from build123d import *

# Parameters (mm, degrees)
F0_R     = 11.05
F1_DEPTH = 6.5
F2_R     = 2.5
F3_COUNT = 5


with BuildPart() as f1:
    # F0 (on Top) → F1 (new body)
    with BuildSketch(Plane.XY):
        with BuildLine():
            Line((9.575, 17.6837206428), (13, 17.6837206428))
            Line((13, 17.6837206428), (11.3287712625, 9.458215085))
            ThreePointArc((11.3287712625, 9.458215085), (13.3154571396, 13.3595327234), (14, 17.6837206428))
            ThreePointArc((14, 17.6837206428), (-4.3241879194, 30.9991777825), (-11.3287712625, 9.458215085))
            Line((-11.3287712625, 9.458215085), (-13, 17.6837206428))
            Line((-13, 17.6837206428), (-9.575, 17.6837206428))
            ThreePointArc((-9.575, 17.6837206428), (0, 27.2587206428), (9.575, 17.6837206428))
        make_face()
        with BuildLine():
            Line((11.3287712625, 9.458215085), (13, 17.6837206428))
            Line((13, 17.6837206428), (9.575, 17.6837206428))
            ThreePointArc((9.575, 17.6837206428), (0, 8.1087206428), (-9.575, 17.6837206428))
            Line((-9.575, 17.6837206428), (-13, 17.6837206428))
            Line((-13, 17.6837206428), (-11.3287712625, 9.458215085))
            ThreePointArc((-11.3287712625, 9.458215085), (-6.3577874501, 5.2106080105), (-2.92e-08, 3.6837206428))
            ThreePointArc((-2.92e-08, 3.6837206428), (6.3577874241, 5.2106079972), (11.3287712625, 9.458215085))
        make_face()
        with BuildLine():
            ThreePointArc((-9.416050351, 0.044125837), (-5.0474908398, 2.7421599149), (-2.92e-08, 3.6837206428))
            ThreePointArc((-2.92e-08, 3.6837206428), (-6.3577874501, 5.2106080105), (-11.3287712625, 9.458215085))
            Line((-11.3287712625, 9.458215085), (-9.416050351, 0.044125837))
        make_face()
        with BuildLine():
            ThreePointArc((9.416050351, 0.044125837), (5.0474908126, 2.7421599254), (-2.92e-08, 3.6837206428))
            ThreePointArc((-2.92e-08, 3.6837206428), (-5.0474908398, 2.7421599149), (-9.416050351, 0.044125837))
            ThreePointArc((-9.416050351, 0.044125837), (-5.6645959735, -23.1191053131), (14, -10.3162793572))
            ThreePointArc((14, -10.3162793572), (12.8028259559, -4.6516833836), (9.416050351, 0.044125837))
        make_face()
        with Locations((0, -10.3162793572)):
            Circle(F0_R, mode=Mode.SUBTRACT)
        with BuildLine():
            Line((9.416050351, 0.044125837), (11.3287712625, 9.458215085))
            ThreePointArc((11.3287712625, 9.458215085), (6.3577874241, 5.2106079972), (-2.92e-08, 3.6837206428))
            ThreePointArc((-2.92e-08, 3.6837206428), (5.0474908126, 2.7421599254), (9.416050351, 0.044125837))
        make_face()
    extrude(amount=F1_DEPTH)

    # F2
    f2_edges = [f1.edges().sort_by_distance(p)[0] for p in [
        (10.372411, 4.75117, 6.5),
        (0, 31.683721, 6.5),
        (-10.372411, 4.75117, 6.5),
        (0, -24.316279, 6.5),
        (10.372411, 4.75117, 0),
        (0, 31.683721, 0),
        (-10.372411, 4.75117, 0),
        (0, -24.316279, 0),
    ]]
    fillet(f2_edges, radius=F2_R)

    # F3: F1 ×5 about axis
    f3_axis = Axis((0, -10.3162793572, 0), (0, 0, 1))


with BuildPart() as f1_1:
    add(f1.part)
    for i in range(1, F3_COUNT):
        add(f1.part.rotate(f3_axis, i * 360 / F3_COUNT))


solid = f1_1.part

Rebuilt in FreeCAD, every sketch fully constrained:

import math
import FreeCAD as App
import Part
import Sketcher
from FreeCAD import Vector
Q = App.Units.Quantity


def edges_at(feature, points):
    """Names of the edges that pass closest to the given points."""
    edges = feature.Shape.Edges
    near = lambda p: min(range(len(edges)), key=lambda i: edges[i].distToShape(Part.Vertex(*p))[0])
    return sorted({f"Edge{near(p) + 1}" for p in points})

doc = App.newDocument("Part")
body = doc.addObject("PartDesign::Body", "Body")

# Sketch on XY plane
sketch1 = doc.addObject("Sketcher::SketchObject", "Sketch")
body.addObject(sketch1)
sketch1.AttachmentSupport = (doc.XY_Plane, [""])
sketch1.MapMode = "FlatFace"
sketch1.addGeometry([
    Part.ArcOfCircle(Part.Circle(Vector(0, 18, 0), Vector(0, 0, 1), 14), math.radians(-36), math.radians(0)),  # 0
    Part.ArcOfCircle(Part.Circle(Vector(0, 18, 0), Vector(0, 0, 1), 14), math.radians(0), math.radians(216)),  # 1
    Part.LineSegment(Vector(-11, 9, 0), Vector(-9, 0, 0)),  # 2
    Part.ArcOfCircle(Part.Circle(Vector(0, -10, 0), Vector(0, 0, 1), 14), math.radians(132), math.radians(360)),  # 3
    Part.ArcOfCircle(Part.Circle(Vector(0, -10, 0), Vector(0, 0, 1), 14), math.radians(0), math.radians(48)),  # 4
    Part.LineSegment(Vector(9, 0, 0), Vector(11, 9, 0)),  # 5
    Part.Circle(Vector(0, -10, 0), Vector(0, 0, 1), 11),  # 6
    Part.Circle(Vector(0, 18, 0), Vector(0, 0, 1), 10),  # 7
], False)
sketch1.addConstraint([
    Sketcher.Constraint("Tangent", 0, 2, 1, 1),
    Sketcher.Constraint("Coincident", 1, 2, 2, 1),
    Sketcher.Constraint("Coincident", 2, 2, 3, 1),
    Sketcher.Constraint("Tangent", 3, 2, 4, 1),
    Sketcher.Constraint("Coincident", 4, 2, 5, 1),
    Sketcher.Constraint("Coincident", 5, 2, 0, 1),
    Sketcher.Constraint("Coincident", 6, 3, 3, 3),
    Sketcher.Constraint("Coincident", 7, 3, 0, 3),
    Sketcher.Constraint("Equal", 0, 1),
    Sketcher.Constraint("Equal", 1, 3),
    Sketcher.Constraint("Equal", 3, 4),
    Sketcher.Constraint("Symmetric", 2, 2, 4, 2, -2),
    Sketcher.Constraint("Symmetric", 1, 2, 5, 2, -2),
    Sketcher.Constraint("Horizontal", 7, 3, 0, 2),
    Sketcher.Constraint("Horizontal", 6, 3, 3, 2),
    Sketcher.Constraint("Radius", 0, Q("14 mm")),
    Sketcher.Constraint("Diameter", 6, Q("22.1 mm")),
    Sketcher.Constraint("Diameter", 7, Q("19.15 mm")),
    Sketcher.Constraint("DistanceY", 3, 3, 0, 3, Q("28 mm")),
    Sketcher.Constraint("DistanceY", -1, 1, 0, 3, Q("17.683721 mm")),
    Sketcher.Constraint("DistanceX", 1, 2, -1, 1, Q("11.328771 mm")),
    Sketcher.Constraint("DistanceX", 2, 2, -1, 1, Q("9.41605 mm")),
])
pad1 = doc.addObject("PartDesign::Pad", "Pad")
body.addObject(pad1)
pad1.Profile = sketch1
pad1.Length = 6.5
doc.recompute()

fillet = doc.addObject("PartDesign::Fillet", "Fillet")
body.addObject(fillet)
fillet.Base = (pad1, edges_at(pad1, [
    (10.372, 4.751, 6.5),
    (-4.324, 30.999, 6.5),
    (-10.372, 4.751, 6.5),
    (-5.665, -23.119, 6.5),
    (10.372, 4.751, 0),
    (-4.324, 30.999, 0),
    (-10.372, 4.751, 0),
    (-5.665, -23.119, 0),
]))
fillet.Radius = 2.5
body2 = doc.addObject("PartDesign::Body", "Body001")
doc.recompute()

body2.BaseFeature = body
doc.recompute()

body3 = doc.addObject("PartDesign::Body", "Body002")
body3.BaseFeature = body
body3.Placement = App.Placement(Vector(-9.811365, -7.128374, 0), App.Rotation(Vector(0, 0, 1), 72))
boolean = doc.addObject("PartDesign::Boolean", "Boolean")
body2.addObject(boolean)
boolean.Type = "Fuse"
boolean.addObjects([body3])
doc.recompute()

body4 = doc.addObject("PartDesign::Body", "Body003")
body4.BaseFeature = body
body4.Placement = App.Placement(Vector(-6.063757, -18.662325, 0), App.Rotation(Vector(0, 0, 1), 144))
boolean2 = doc.addObject("PartDesign::Boolean", "Boolean001")
body2.addObject(boolean2)
boolean2.Type = "Fuse"
boolean2.addObjects([body4])
doc.recompute()

body5 = doc.addObject("PartDesign::Body", "Body004")
body5.BaseFeature = body
body5.Placement = App.Placement(Vector(6.063757, -18.662325, 0), App.Rotation(Vector(0, 0, 1), 216))
boolean3 = doc.addObject("PartDesign::Boolean", "Boolean002")
body2.addObject(boolean3)
boolean3.Type = "Fuse"
boolean3.addObjects([body5])
doc.recompute()

body.Placement = App.Placement(Vector(9.811365, -7.128374, 0), App.Rotation(Vector(0, 0, 1), 288))
boolean4 = doc.addObject("PartDesign::Boolean", "Boolean003")
body2.addObject(boolean4)
boolean4.Type = "Fuse"
boolean4.addObjects([body])

doc.recompute()
